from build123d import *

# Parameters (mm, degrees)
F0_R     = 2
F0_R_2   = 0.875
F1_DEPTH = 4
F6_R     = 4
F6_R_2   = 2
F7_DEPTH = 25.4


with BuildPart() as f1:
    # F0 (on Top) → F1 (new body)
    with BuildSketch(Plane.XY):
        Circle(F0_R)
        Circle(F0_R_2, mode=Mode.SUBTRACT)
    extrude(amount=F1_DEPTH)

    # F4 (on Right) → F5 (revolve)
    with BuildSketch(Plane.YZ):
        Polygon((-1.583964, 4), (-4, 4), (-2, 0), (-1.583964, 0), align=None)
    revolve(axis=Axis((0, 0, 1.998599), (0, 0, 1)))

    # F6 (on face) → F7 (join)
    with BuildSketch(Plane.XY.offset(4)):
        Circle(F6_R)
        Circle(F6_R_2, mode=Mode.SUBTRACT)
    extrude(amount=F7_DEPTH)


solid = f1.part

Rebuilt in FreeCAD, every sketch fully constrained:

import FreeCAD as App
import Part
import Sketcher

V = App.Vector
Q = App.Units.Quantity


def add_polygon(sketch, points):
    """Adds a closed chain of lines whose ends are joined by coincident constraints."""
    first, n = sketch.GeometryCount, len(points)
    for a, b in zip(points, points[1:] + points[:1]):
        sketch.addGeometry(Part.LineSegment(App.Vector(*a, 0), App.Vector(*b, 0)), False)
    for i in range(n):
        sketch.addConstraint(Sketcher.Constraint("Coincident", first + i, 2, first + (i + 1) % n, 1))

doc = App.newDocument("Part")
body = doc.addObject("PartDesign::Body", "Body")

# Sketch on XY plane
sketch1 = body.newObject("Sketcher::SketchObject", "Sketch")
sketch1.AttachmentSupport = (doc.getObject("XY_Plane"), [""])
sketch1.MapMode = "FlatFace"
sketch1.addGeometry([
    Part.Circle(V(0, 0, 0), V(0, 0, 1), 2),
    Part.Circle(V(0, 0, 0), V(0, 0, 1), 0.9),
], False)
sketch1.addConstraint([
    Sketcher.Constraint("Coincident", 0, 3, -1, 1),
    Sketcher.Constraint("Coincident", 1, 3, -1, 1),
    Sketcher.Constraint("Diameter", 0, Q("4 mm")),
    Sketcher.Constraint("Diameter", 1, Q("1.75 mm")),
])
pad1 = body.newObject("PartDesign::Pad", "Pad")
pad1.Profile = sketch1
pad1.Length = 4

# Sketch on YZ plane
sketch2 = body.newObject("Sketcher::SketchObject", "Sketch001")
sketch2.AttachmentSupport = (doc.getObject("YZ_Plane"), [""])
sketch2.MapMode = "FlatFace"
add_polygon(sketch2, [(-1.58, 4), (-4, 4), (-2, 0), (-1.58, 0)])  # lines 0-3
sketch2.addConstraint([
    Sketcher.Constraint("Horizontal", 0),
    Sketcher.Constraint("Horizontal", 2),
    Sketcher.Constraint("Vertical", 3),
    Sketcher.Constraint("PointOnObject", 1, 2, -1),
    Sketcher.Constraint("DistanceY", 3, 1, 3, 2, Q("4 mm")),
    Sketcher.Constraint("DistanceX", 0, 2, -1, 1, Q("4 mm")),
    Sketcher.Constraint("DistanceX", 1, 2, -1, 1, Q("2 mm")),
    Sketcher.Constraint("DistanceX", 0, 2, 0, 1, Q("2.416036 mm")),
])
revolution = body.newObject("PartDesign::Revolution", "Revolution")
revolution.Profile = sketch2
revolution.ReferenceAxis = (sketch2, ["V_Axis"])
revolution.Angle = 360

# Sketch on XY plane
sketch3 = body.newObject("Sketcher::SketchObject", "Sketch002")
sketch3.AttachmentSupport = (doc.getObject("XY_Plane"), [""])
sketch3.MapMode = "FlatFace"
sketch3.AttachmentOffset = App.Placement(V(0, 0, 4), App.Rotation())
sketch3.addGeometry([
    Part.Circle(V(0, 0, 0), V(0, 0, 1), 4),
    Part.Circle(V(0, 0, 0), V(0, 0, 1), 2),
], False)
sketch3.addConstraint([
    Sketcher.Constraint("Coincident", 0, 3, -1, 1),
    Sketcher.Constraint("Coincident", 1, 3, -1, 1),
    Sketcher.Constraint("Diameter", 0, Q("8 mm")),
    Sketcher.Constraint("Diameter", 1, Q("4 mm")),
])
pad2 = body.newObject("PartDesign::Pad", "Pad001")
pad2.Profile = sketch3
pad2.Length = 25.4

doc.recompute()
